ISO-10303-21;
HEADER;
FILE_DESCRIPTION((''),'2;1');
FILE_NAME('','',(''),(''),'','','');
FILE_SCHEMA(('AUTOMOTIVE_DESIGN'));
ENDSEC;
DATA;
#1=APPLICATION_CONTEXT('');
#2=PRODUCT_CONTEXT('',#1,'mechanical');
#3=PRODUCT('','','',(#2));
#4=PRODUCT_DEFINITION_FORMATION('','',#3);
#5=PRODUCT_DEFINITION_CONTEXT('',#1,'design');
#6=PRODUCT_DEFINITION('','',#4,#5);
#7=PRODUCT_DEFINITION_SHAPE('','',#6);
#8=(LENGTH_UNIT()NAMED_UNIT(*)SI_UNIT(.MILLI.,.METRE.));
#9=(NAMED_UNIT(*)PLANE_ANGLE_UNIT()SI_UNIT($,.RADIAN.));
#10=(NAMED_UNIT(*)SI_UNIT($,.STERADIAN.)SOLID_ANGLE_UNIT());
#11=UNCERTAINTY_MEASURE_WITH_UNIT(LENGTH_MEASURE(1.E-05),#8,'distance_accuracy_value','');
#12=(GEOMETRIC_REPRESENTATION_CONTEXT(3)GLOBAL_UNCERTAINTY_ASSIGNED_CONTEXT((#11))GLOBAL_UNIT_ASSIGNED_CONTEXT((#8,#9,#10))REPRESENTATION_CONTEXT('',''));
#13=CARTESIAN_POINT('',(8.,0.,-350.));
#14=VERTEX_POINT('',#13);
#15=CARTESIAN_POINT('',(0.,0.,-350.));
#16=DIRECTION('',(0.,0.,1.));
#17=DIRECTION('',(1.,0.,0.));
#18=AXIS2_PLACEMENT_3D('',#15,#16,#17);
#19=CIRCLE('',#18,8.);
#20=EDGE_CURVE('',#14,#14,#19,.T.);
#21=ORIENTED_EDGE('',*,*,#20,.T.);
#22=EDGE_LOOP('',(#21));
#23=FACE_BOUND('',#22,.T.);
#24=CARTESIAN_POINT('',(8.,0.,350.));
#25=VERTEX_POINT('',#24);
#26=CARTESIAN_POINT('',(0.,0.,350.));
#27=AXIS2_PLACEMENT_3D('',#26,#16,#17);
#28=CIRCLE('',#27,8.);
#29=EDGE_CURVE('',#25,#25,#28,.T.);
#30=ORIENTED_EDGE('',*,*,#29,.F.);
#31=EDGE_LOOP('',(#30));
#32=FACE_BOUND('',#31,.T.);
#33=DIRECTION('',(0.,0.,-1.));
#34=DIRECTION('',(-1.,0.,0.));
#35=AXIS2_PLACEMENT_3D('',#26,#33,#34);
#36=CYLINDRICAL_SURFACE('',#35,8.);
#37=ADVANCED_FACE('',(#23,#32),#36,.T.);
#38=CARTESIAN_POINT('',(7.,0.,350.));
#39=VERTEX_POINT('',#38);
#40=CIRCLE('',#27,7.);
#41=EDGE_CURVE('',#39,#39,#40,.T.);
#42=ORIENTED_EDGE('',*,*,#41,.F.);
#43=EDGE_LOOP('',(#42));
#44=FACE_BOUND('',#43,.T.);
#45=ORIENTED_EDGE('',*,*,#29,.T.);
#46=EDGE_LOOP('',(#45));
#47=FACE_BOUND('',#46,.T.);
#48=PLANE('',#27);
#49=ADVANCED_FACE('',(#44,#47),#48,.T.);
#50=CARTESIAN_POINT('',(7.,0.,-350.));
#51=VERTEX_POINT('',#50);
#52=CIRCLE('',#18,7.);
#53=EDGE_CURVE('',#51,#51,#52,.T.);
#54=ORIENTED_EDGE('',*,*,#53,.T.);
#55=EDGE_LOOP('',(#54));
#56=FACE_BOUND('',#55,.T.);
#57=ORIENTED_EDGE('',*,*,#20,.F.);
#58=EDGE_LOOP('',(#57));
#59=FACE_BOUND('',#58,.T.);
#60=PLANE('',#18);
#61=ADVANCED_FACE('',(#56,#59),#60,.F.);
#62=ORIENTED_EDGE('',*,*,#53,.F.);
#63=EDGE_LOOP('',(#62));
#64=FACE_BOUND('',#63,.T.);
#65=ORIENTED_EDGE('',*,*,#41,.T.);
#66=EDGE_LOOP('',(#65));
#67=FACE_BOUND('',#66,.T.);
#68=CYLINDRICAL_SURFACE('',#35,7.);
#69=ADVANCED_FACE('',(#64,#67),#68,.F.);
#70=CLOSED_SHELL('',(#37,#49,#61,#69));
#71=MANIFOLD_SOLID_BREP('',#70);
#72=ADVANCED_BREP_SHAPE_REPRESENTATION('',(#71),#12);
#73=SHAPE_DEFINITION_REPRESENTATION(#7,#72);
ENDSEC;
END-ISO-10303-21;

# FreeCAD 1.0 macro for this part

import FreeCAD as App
import Part
import Sketcher
from FreeCAD import Vector
Q = App.Units.Quantity

doc = App.newDocument("Part")
params = doc.addObject("Spreadsheet::Sheet", "Params")
for row, (alias, value) in enumerate([
    ("sketch1_diameter", "16 mm"),
    ("sketch1_diameter2", "14 mm"),
    ("pad1_length", "700 mm"),
], start=1):
    params.set(f"A{row}", alias)
    params.set(f"B{row}", "=" + value)
    params.setAlias(f"B{row}", alias)

body = doc.addObject("PartDesign::Body", "Body")

sketch1 = doc.addObject("Sketcher::SketchObject", "Sketch")
body.addObject(sketch1)
sketch1.AttachmentSupport = (doc.XY_Plane, [""])
sketch1.MapMode = "FlatFace"
sketch1.addGeometry([
    Part.Circle(Vector(0, 0, 0), Vector(0, 0, 1), 8),
    Part.Circle(Vector(0, 0, 0), Vector(0, 0, 1), 7),
], False)
sketch1.addConstraint([
    Sketcher.Constraint("Coincident", 0, 3, -1, 1),
    Sketcher.Constraint("Coincident", 1, 3, -1, 1),
    Sketcher.Constraint("Diameter", 0, Q("16 mm")),
    Sketcher.Constraint("Diameter", 1, Q("14 mm")),
])
sketch1.setExpression("Constraints[2]", "Params.sketch1_diameter")
sketch1.setExpression("Constraints[3]", "Params.sketch1_diameter2")
pad1 = doc.addObject("PartDesign::Pad", "Pad")
body.addObject(pad1)
pad1.Profile = sketch1
pad1.setExpression("Length", "Params.pad1_length")
pad1.Midplane = True

doc.recompute()
